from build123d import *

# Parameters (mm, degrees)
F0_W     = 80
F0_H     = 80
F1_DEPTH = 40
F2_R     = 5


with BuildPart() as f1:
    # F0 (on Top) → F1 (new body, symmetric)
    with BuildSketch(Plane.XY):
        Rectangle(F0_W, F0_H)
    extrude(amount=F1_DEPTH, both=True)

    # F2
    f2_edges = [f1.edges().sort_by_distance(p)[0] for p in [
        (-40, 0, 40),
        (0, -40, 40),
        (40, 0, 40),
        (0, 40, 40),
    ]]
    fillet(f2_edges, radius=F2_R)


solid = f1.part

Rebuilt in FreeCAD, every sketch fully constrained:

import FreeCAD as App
import Part
import Sketcher
from FreeCAD import Vector
Q = App.Units.Quantity


def edges_at(feature, points):
    """Names of the edges that pass closest to the given points."""
    edges = feature.Shape.Edges
    near = lambda p: min(range(len(edges)), key=lambda i: edges[i].distToShape(Part.Vertex(*p))[0])
    return sorted({f"Edge{near(p) + 1}" for p in points})

doc = App.newDocument("Part")
body = doc.addObject("PartDesign::Body", "Body")

# Sketch on XY plane
sketch1 = doc.addObject("Sketcher::SketchObject", "Sketch")
body.addObject(sketch1)
sketch1.AttachmentSupport = (doc.XY_Plane, [""])
sketch1.MapMode = "FlatFace"
sketch1.addGeometry([
    Part.LineSegment(Vector(-40, 40, 0), Vector(-40, -40, 0)),
    Part.LineSegment(Vector(-40, -40, 0), Vector(40, -40, 0)),
    Part.LineSegment(Vector(40, -40, 0), Vector(40, 40, 0)),
    Part.LineSegment(Vector(40, 40, 0), Vector(-40, 40, 0)),
], False)
sketch1.addConstraint([
    Sketcher.Constraint("Coincident", 0, 2, 1, 1),
    Sketcher.Constraint("Coincident", 1, 2, 2, 1),
    Sketcher.Constraint("Coincident", 2, 2, 3, 1),
    Sketcher.Constraint("Coincident", 3, 2, 0, 1),
    Sketcher.Constraint("Vertical", 0),
    Sketcher.Constraint("Horizontal", 1),
    Sketcher.Constraint("Vertical", 2),
    Sketcher.Constraint("Horizontal", 3),
    Sketcher.Constraint("Symmetric", 0, 2, 2, 2, -1, 1),
    Sketcher.Constraint("Equal", 3, 0),
    Sketcher.Constraint("DistanceX", 1, 1, 1, 2, Q("80 mm")),
])
pad1 = doc.addObject("PartDesign::Pad", "Pad")
body.addObject(pad1)
pad1.Profile = sketch1
pad1.Length = 80
pad1.Midplane = True
doc.recompute()

fillet = doc.addObject("PartDesign::Fillet", "Fillet")
body.addObject(fillet)
fillet.Base = (pad1, edges_at(pad1, [
    (-40, 0, 40),
    (0, -40, 40),
    (40, 0, 40),
    (0, 40, 40),
]))
fillet.Radius = 5

doc.recompute()
